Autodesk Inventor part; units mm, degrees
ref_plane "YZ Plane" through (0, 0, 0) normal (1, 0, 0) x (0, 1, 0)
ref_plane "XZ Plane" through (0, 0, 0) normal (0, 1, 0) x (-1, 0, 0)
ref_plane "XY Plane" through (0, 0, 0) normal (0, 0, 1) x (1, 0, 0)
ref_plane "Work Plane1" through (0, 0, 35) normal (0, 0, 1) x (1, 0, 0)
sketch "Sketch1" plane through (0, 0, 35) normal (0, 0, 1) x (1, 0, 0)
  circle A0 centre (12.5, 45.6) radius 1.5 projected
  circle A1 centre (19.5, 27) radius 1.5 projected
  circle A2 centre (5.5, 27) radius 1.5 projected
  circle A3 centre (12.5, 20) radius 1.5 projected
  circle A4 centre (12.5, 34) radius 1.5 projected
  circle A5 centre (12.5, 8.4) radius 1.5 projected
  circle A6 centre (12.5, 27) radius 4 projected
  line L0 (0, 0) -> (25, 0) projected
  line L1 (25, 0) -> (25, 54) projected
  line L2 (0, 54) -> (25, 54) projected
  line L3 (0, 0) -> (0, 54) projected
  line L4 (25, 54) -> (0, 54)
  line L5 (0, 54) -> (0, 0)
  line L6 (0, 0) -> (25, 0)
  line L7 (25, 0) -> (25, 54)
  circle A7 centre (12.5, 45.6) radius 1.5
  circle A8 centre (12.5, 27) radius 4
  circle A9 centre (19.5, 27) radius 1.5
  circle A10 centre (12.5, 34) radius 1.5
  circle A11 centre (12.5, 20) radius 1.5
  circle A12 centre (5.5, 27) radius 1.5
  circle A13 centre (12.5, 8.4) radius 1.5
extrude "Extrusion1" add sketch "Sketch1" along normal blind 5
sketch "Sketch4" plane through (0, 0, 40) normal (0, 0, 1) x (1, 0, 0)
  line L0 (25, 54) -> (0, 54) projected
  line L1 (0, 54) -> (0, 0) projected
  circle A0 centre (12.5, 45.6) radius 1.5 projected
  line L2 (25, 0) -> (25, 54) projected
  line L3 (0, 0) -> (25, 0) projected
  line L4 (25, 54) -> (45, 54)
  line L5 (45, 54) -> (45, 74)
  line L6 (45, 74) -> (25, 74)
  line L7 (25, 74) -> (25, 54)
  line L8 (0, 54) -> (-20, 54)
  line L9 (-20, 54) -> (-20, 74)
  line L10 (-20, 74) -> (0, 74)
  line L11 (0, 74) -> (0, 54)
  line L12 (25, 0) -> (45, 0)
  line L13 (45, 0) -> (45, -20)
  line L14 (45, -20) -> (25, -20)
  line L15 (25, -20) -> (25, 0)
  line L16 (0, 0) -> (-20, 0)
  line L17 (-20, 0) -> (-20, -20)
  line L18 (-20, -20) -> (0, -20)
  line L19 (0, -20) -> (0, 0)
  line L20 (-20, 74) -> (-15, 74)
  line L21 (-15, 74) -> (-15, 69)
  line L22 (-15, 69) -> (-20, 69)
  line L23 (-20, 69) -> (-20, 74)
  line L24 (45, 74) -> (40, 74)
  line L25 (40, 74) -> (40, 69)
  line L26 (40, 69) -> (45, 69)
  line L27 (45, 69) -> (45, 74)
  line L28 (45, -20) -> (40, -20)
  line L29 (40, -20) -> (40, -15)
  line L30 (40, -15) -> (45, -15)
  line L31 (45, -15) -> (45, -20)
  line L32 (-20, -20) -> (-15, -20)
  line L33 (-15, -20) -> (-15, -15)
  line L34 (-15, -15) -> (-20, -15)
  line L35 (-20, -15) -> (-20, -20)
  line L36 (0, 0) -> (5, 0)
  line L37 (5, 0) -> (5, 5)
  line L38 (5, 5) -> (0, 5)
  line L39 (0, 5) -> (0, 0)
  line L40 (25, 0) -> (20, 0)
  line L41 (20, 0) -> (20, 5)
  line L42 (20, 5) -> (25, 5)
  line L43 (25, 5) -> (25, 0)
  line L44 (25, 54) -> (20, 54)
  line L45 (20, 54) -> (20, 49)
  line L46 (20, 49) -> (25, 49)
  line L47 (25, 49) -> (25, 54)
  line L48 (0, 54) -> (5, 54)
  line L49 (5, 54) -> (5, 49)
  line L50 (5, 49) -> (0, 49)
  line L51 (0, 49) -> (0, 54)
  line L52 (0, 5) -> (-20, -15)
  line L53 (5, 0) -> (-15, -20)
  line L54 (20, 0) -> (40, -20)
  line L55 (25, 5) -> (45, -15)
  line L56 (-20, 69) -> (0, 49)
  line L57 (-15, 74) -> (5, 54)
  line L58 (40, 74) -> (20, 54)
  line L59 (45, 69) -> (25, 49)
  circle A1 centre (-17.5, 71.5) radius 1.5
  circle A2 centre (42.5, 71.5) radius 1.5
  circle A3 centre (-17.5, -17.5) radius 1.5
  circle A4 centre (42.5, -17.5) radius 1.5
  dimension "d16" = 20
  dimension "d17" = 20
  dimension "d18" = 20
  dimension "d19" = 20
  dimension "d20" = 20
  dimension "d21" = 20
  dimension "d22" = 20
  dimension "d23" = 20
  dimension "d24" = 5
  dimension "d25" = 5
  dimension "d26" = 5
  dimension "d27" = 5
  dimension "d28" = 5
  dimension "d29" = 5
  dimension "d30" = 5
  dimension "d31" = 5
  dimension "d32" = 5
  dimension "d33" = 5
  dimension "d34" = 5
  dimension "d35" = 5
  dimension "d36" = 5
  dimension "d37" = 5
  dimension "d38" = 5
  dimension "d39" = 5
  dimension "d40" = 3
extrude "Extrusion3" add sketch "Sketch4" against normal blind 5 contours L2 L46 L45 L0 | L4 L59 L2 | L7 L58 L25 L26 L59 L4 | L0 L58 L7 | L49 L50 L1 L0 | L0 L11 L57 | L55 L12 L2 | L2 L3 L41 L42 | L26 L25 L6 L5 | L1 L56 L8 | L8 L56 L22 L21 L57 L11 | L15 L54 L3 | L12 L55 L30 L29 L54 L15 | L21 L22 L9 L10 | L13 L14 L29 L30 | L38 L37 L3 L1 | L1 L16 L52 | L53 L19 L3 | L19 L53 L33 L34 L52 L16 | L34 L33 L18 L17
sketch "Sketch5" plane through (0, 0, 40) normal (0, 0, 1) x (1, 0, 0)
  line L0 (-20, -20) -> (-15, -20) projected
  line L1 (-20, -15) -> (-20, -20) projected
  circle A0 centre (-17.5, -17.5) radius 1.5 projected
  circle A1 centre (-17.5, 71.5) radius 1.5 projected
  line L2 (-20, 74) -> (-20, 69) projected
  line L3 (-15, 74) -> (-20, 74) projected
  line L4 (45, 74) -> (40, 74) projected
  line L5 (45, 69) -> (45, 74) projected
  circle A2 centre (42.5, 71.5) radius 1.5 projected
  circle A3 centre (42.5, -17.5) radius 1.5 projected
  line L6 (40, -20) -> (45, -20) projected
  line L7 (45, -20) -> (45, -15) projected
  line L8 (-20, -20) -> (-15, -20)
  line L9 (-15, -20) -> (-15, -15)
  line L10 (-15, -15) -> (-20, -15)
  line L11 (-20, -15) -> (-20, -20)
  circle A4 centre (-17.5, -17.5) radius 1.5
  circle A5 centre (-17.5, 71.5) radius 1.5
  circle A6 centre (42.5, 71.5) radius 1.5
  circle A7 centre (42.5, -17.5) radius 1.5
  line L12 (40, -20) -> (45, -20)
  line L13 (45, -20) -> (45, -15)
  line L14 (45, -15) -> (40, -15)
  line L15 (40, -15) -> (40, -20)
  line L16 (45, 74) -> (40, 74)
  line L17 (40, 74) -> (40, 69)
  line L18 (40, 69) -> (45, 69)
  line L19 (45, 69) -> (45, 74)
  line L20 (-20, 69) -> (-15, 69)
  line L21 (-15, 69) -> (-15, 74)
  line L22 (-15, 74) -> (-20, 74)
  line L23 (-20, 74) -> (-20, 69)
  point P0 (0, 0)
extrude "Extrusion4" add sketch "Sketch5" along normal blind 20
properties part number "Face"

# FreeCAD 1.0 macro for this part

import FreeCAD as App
import Part
import Sketcher

V = App.Vector
Q = App.Units.Quantity


def add_polygon(sketch, points):
    """Adds a closed chain of lines whose ends are joined by coincident constraints."""
    first, n = sketch.GeometryCount, len(points)
    for a, b in zip(points, points[1:] + points[:1]):
        sketch.addGeometry(Part.LineSegment(App.Vector(*a, 0), App.Vector(*b, 0)), False)
    for i in range(n):
        sketch.addConstraint(Sketcher.Constraint("Coincident", first + i, 2, first + (i + 1) % n, 1))

doc = App.newDocument("Part")
body = doc.addObject("PartDesign::Body", "Body")

sketch1 = body.newObject("Sketcher::SketchObject", "Sketch")
sketch1.AttachmentSupport = (doc.getObject("XY_Plane"), [""])
sketch1.MapMode = "FlatFace"
sketch1.AttachmentOffset = App.Placement(V(0, 0, 35), App.Rotation())
add_polygon(sketch1, [(0, 54), (0, 0), (25, 0), (25, 54)])
sketch1.addGeometry(Part.Circle(V(12.5, 8.4, 0), V(0, 0, 1), 1.5), False)
sketch1.addGeometry(Part.Circle(V(12.5, 20, 0), V(0, 0, 1), 1.5), False)
sketch1.addGeometry(Part.Circle(V(5.5, 27, 0), V(0, 0, 1), 1.5), False)
sketch1.addGeometry(Part.Circle(V(12.5, 27, 0), V(0, 0, 1), 4), False)
sketch1.addGeometry(Part.Circle(V(12.5, 34, 0), V(0, 0, 1), 1.5), False)
sketch1.addGeometry(Part.Circle(V(19.5, 27, 0), V(0, 0, 1), 1.5), False)
sketch1.addGeometry(Part.Circle(V(12.5, 45.6, 0), V(0, 0, 1), 1.5), False)
sketch1.addConstraint(Sketcher.Constraint("Vertical", 0))
sketch1.addConstraint(Sketcher.Constraint("Horizontal", 1))
sketch1.addConstraint(Sketcher.Constraint("Vertical", 2))
sketch1.addConstraint(Sketcher.Constraint("Horizontal", 3))
sketch1.addConstraint(Sketcher.Constraint("Coincident", 0, 2, -1, 1))
sketch1.addConstraint(Sketcher.Constraint("Equal", 4, 5))
sketch1.addConstraint(Sketcher.Constraint("Equal", 5, 6))
sketch1.addConstraint(Sketcher.Constraint("Equal", 6, 8))
sketch1.addConstraint(Sketcher.Constraint("Equal", 8, 9))
sketch1.addConstraint(Sketcher.Constraint("Equal", 9, 10))
sketch1.addConstraint(Sketcher.Constraint("Horizontal", 6, 3, 7, 3))
sketch1.addConstraint(Sketcher.Constraint("Horizontal", 7, 3, 9, 3))
sketch1.addConstraint(Sketcher.Constraint("Vertical", 4, 3, 5, 3))
sketch1.addConstraint(Sketcher.Constraint("Vertical", 5, 3, 7, 3))
sketch1.addConstraint(Sketcher.Constraint("Vertical", 7, 3, 8, 3))
sketch1.addConstraint(Sketcher.Constraint("Vertical", 8, 3, 10, 3))
sketch1.addConstraint(Sketcher.Constraint("Diameter", 4, Q("3 mm")))
sketch1.addConstraint(Sketcher.Constraint("Diameter", 7, Q("8 mm")))
sketch1.addConstraint(Sketcher.Constraint("DistanceX", 1, 1, 1, 2, Q("25 mm")))
sketch1.addConstraint(Sketcher.Constraint("DistanceY", 0, 2, 0, 1, Q("54 mm")))
sketch1.addConstraint(Sketcher.Constraint("DistanceY", -1, 1, 5, 3, Q("20 mm")))
sketch1.addConstraint(Sketcher.Constraint("DistanceY", -1, 1, 6, 3, Q("27 mm")))
sketch1.addConstraint(Sketcher.Constraint("DistanceY", -1, 1, 8, 3, Q("34 mm")))
sketch1.addConstraint(Sketcher.Constraint("DistanceX", 6, 3, 5, 3, Q("7 mm")))
sketch1.addConstraint(Sketcher.Constraint("DistanceX", 7, 3, 9, 3, Q("7 mm")))
sketch1.addConstraint(Sketcher.Constraint("DistanceX", -1, 1, 4, 3, Q("12.5 mm")))
sketch1.addConstraint(Sketcher.Constraint("DistanceY", -1, 1, 4, 3, Q("8.4 mm")))
sketch1.addConstraint(Sketcher.Constraint("DistanceY", -1, 1, 10, 3, Q("45.6 mm")))
pad1 = body.newObject("PartDesign::Pad", "Pad")
pad1.Profile = sketch1
pad1.Length = 5

sketch2 = body.newObject("Sketcher::SketchObject", "Sketch001")
sketch2.AttachmentSupport = (doc.getObject("XY_Plane"), [""])
sketch2.MapMode = "FlatFace"
sketch2.AttachmentOffset = App.Placement(V(0, 0, 40), App.Rotation())
add_polygon(sketch2, [(20, 49), (25, 49), (45, 69), (45, 74), (40, 74), (20, 54)])
sketch2.addGeometry(Part.Circle(V(42.5, 71.5, 0), V(0, 0, 1), 1.5), False)
add_polygon(sketch2, [(5, 49), (5, 54), (-15, 74), (-20, 74), (-20, 69), (0, 49)])
sketch2.addGeometry(Part.Circle(V(-17.5, 71.5, 0), V(0, 0, 1), 1.5), False)
add_polygon(sketch2, [(25, 5), (20, 5), (20, 0), (40, -20), (45, -20), (45, -15)])
sketch2.addGeometry(Part.Circle(V(42.5, -17.5, 0), V(0, 0, 1), 1.5), False)
add_polygon(sketch2, [(5, 5), (0, 5), (-20, -15), (-20, -20), (-15, -20), (5, 0)])
sketch2.addGeometry(Part.Circle(V(-17.5, -17.5, 0), V(0, 0, 1), 1.5), False)
sketch2.addConstraint(Sketcher.Constraint("Horizontal", 0))
sketch2.addConstraint(Sketcher.Constraint("Vertical", 2))
sketch2.addConstraint(Sketcher.Constraint("Horizontal", 3))
sketch2.addConstraint(Sketcher.Constraint("Vertical", 5))
sketch2.addConstraint(Sketcher.Constraint("Vertical", 7))
sketch2.addConstraint(Sketcher.Constraint("Horizontal", 9))
sketch2.addConstraint(Sketcher.Constraint("Vertical", 10))
sketch2.addConstraint(Sketcher.Constraint("Horizontal", 12))
sketch2.addConstraint(Sketcher.Constraint("Horizontal", 14))
sketch2.addConstraint(Sketcher.Constraint("Vertical", 15))
sketch2.addConstraint(Sketcher.Constraint("Horizontal", 17))
sketch2.addConstraint(Sketcher.Constraint("Vertical", 18))
sketch2.addConstraint(Sketcher.Constraint("Horizontal", 21))
sketch2.addConstraint(Sketcher.Constraint("Vertical", 23))
sketch2.addConstraint(Sketcher.Constraint("Horizontal", 24))
sketch2.addConstraint(Sketcher.Constraint("Vertical", 26))
sketch2.addConstraint(Sketcher.Constraint("Equal", 6, 13))
sketch2.addConstraint(Sketcher.Constraint("Equal", 13, 20))
sketch2.addConstraint(Sketcher.Constraint("Equal", 20, 27))
sketch2.addConstraint(Sketcher.Constraint("PointOnObject", 11, 2, -2))
sketch2.addConstraint(Sketcher.Constraint("PointOnObject", 15, 2, -1))
sketch2.addConstraint(Sketcher.Constraint("PointOnObject", 21, 2, -2))
sketch2.addConstraint(Sketcher.Constraint("PointOnObject", 25, 2, -1))
sketch2.addConstraint(Sketcher.Constraint("Parallel", 1, 4))
sketch2.addConstraint(Sketcher.Constraint("Perpendicular", 4, 8))
sketch2.addConstraint(Sketcher.Constraint("Parallel", 8, 11))
sketch2.addConstraint(Sketcher.Constraint("Parallel", 11, 16))
sketch2.addConstraint(Sketcher.Constraint("Parallel", 16, 19))
sketch2.addConstraint(Sketcher.Constraint("Perpendicular", 19, 22))
sketch2.addConstraint(Sketcher.Constraint("Parallel", 22, 25))
sketch2.addConstraint(Sketcher.Constraint("Horizontal", 6, 3, 13, 3))
sketch2.addConstraint(Sketcher.Constraint("Horizontal", 20, 3, 27, 3))
sketch2.addConstraint(Sketcher.Constraint("Horizontal", 4, 2, 7, 2))
sketch2.addConstraint(Sketcher.Constraint("Horizontal", 3, 2, 8, 2))
sketch2.addConstraint(Sketcher.Constraint("Horizontal", 1, 2, 10, 2))
sketch2.addConstraint(Sketcher.Constraint("Horizontal", 5, 2, 11, 2))
sketch2.addConstraint(Sketcher.Constraint("Horizontal", 19, 2, 21, 2))
sketch2.addConstraint(Sketcher.Constraint("Horizontal", 18, 2, 22, 2))
sketch2.addConstraint(Sketcher.Constraint("Horizontal", 17, 2, 23, 2))
sketch2.addConstraint(Sketcher.Constraint("Vertical", 6, 3, 20, 3))
sketch2.addConstraint(Sketcher.Constraint("Vertical", 13, 3, 27, 3))
sketch2.addConstraint(Sketcher.Constraint("Vertical", 5, 2, 14, 2))
sketch2.addConstraint(Sketcher.Constraint("Vertical", 3, 2, 16, 2))
sketch2.addConstraint(Sketcher.Constraint("Vertical", 2, 2, 17, 2))
sketch2.addConstraint(Sketcher.Constraint("Vertical", 0, 2, 19, 2))
sketch2.addConstraint(Sketcher.Constraint("Vertical", 10, 2, 22, 2))
sketch2.addConstraint(Sketcher.Constraint("Vertical", 8, 2, 24, 2))
sketch2.addConstraint(Sketcher.Constraint("Equal", 0, 3))
sketch2.addConstraint(Sketcher.Constraint("Equal", 3, 9))
sketch2.addConstraint(Sketcher.Constraint("Equal", 24, 2))
sketch2.addConstraint(Sketcher.Constraint("Equal", 10, 15))
sketch2.addConstraint(Sketcher.Constraint("Diameter", 6, Q("3 mm")))
sketch2.addConstraint(Sketcher.Constraint("DistanceX", 0, 1, 0, 2, Q("5 mm")))
sketch2.addConstraint(Sketcher.Constraint("DistanceX", -1, 1, 4, 2, Q("20 mm")))
sketch2.addConstraint(Sketcher.Constraint("DistanceX", 9, 2, -1, 1, Q("20 mm")))
sketch2.addConstraint(Sketcher.Constraint("DistanceY", -1, 1, 0, 2, Q("49 mm")))
sketch2.addConstraint(Sketcher.Constraint("DistanceX", 13, 3, 6, 3, Q("60 mm")))
sketch2.addConstraint(Sketcher.Constraint("DistanceY", 20, 3, 6, 3, Q("89 mm")))
sketch2.addConstraint(Sketcher.Constraint("DistanceX", -1, 1, 6, 3, Q("42.5 mm")))
sketch2.addConstraint(Sketcher.Constraint("DistanceY", -1, 1, 6, 3, Q("71.5 mm")))
pad2 = body.newObject("PartDesign::Pad", "Pad001")
pad2.Profile = sketch2
pad2.Length = 5
pad2.Reversed = True

sketch3 = body.newObject("Sketcher::SketchObject", "Sketch002")
sketch3.AttachmentSupport = (doc.getObject("XY_Plane"), [""])
sketch3.MapMode = "FlatFace"
sketch3.AttachmentOffset = App.Placement(V(0, 0, 40), App.Rotation())
add_polygon(sketch3, [(-20, -15), (-20, -20), (-15, -20), (-15, -15)])
sketch3.addGeometry(Part.Circle(V(-17.5, -17.5, 0), V(0, 0, 1), 1.5), False)
add_polygon(sketch3, [(-15, 74), (-20, 74), (-20, 69), (-15, 69)])
sketch3.addGeometry(Part.Circle(V(-17.5, 71.5, 0), V(0, 0, 1), 1.5), False)
add_polygon(sketch3, [(45, 69), (45, 74), (40, 74), (40, 69)])
sketch3.addGeometry(Part.Circle(V(42.5, 71.5, 0), V(0, 0, 1), 1.5), False)
add_polygon(sketch3, [(40, -15), (40, -20), (45, -20), (45, -15)])
sketch3.addGeometry(Part.Circle(V(42.5, -17.5, 0), V(0, 0, 1), 1.5), False)
sketch3.addConstraint(Sketcher.Constraint("Vertical", 0))
sketch3.addConstraint(Sketcher.Constraint("Horizontal", 1))
sketch3.addConstraint(Sketcher.Constraint("Vertical", 2))
sketch3.addConstraint(Sketcher.Constraint("Horizontal", 3))
sketch3.addConstraint(Sketcher.Constraint("Horizontal", 5))
sketch3.addConstraint(Sketcher.Constraint("Vertical", 6))
sketch3.addConstraint(Sketcher.Constraint("Horizontal", 7))
sketch3.addConstraint(Sketcher.Constraint("Vertical", 8))
sketch3.addConstraint(Sketcher.Constraint("Vertical", 10))
sketch3.addConstraint(Sketcher.Constraint("Horizontal", 11))
sketch3.addConstraint(Sketcher.Constraint("Vertical", 12))
sketch3.addConstraint(Sketcher.Constraint("Horizontal", 13))
sketch3.addConstraint(Sketcher.Constraint("Vertical", 15))
sketch3.addConstraint(Sketcher.Constraint("Horizontal", 16))
sketch3.addConstraint(Sketcher.Constraint("Vertical", 17))
sketch3.addConstraint(Sketcher.Constraint("Horizontal", 18))
sketch3.addConstraint(Sketcher.Constraint("Equal", 4, 9))
sketch3.addConstraint(Sketcher.Constraint("Equal", 9, 14))
sketch3.addConstraint(Sketcher.Constraint("Equal", 14, 19))
sketch3.addConstraint(Sketcher.Constraint("Horizontal", 9, 3, 14, 3))
sketch3.addConstraint(Sketcher.Constraint("Horizontal", 4, 3, 19, 3))
sketch3.addConstraint(Sketcher.Constraint("Horizontal", 8, 2, 10, 2))
sketch3.addConstraint(Sketcher.Constraint("Horizontal", 7, 2, 12, 2))
sketch3.addConstraint(Sketcher.Constraint("Horizontal", 1, 2, 15, 2))
sketch3.addConstraint(Sketcher.Constraint("Horizontal", 3, 2, 17, 2))
sketch3.addConstraint(Sketcher.Constraint("Vertical", 4, 3, 9, 3))
sketch3.addConstraint(Sketcher.Constraint("Vertical", 14, 3, 19, 3))
sketch3.addConstraint(Sketcher.Constraint("Vertical", 3, 2, 5, 2))
sketch3.addConstraint(Sketcher.Constraint("Vertical", 2, 2, 7, 2))
sketch3.addConstraint(Sketcher.Constraint("Vertical", 12, 2, 15, 2))
sketch3.addConstraint(Sketcher.Constraint("Vertical", 13, 2, 16, 2))
sketch3.addConstraint(Sketcher.Constraint("Equal", 7, 11))
sketch3.addConstraint(Sketcher.Constraint("Equal", 18, 0))
sketch3.addConstraint(Sketcher.Constraint("Equal", 2, 6))
sketch3.addConstraint(Sketcher.Constraint("Diameter", 4, Q("3 mm")))
sketch3.addConstraint(Sketcher.Constraint("DistanceX", 1, 1, 1, 2, Q("5 mm")))
sketch3.addConstraint(Sketcher.Constraint("DistanceX", 0, 2, -1, 1, Q("20 mm")))
sketch3.addConstraint(Sketcher.Constraint("DistanceY", 0, 2, -1, 1, Q("20 mm")))
sketch3.addConstraint(Sketcher.Constraint("DistanceY", -1, 1, 5, 2, Q("74 mm")))
sketch3.addConstraint(Sketcher.Constraint("DistanceX", -1, 1, 10, 2, Q("45 mm")))
sketch3.addConstraint(Sketcher.Constraint("DistanceY", 4, 3, 9, 3, Q("89 mm")))
sketch3.addConstraint(Sketcher.Constraint("DistanceX", 9, 3, 14, 3, Q("60 mm")))
sketch3.addConstraint(Sketcher.Constraint("DistanceX", 4, 3, -1, 1, Q("17.5 mm")))
sketch3.addConstraint(Sketcher.Constraint("DistanceY", 4, 3, -1, 1, Q("17.5 mm")))
pad3 = body.newObject("PartDesign::Pad", "Pad002")
pad3.Profile = sketch3
pad3.Length = 20

doc.recompute()
